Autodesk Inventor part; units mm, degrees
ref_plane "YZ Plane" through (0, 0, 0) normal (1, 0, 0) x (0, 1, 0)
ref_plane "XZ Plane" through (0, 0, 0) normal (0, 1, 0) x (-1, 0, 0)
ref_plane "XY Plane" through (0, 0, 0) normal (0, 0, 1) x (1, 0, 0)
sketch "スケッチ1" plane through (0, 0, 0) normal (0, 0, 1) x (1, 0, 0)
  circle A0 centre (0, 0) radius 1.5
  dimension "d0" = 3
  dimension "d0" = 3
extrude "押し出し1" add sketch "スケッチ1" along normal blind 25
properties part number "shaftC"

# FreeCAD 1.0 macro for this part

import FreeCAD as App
import Part
import Sketcher
Q = App.Units.Quantity

doc = App.newDocument("Part")
params = doc.addObject("Spreadsheet::Sheet", "Params")
for row, (alias, value) in enumerate([
    ("sketch1_diameter", "3 mm"),
    ("pad1_length", "25 mm"),
], start=1):
    params.set(f"A{row}", alias)
    params.set(f"B{row}", "=" + value)
    params.setAlias(f"B{row}", alias)

body = doc.addObject("PartDesign::Body", "Body")

sketch1 = body.newObject("Sketcher::SketchObject", "Sketch")
sketch1.AttachmentSupport = (doc.getObject("XY_Plane"), [""])
sketch1.MapMode = "FlatFace"
sketch1.addGeometry(Part.Circle(App.Vector(0, 0, 0), App.Vector(0, 0, 1), 1.5), False)
sketch1.addConstraint([
    Sketcher.Constraint("Coincident", 0, 3, -1, 1),
    Sketcher.Constraint("Diameter", 0, Q("3 mm")),
])
sketch1.setExpression("Constraints[1]", "Params.sketch1_diameter")
pad1 = body.newObject("PartDesign::Pad", "Pad")
pad1.Profile = sketch1
pad1.setExpression("Length", "Params.pad1_length")

doc.recompute()
